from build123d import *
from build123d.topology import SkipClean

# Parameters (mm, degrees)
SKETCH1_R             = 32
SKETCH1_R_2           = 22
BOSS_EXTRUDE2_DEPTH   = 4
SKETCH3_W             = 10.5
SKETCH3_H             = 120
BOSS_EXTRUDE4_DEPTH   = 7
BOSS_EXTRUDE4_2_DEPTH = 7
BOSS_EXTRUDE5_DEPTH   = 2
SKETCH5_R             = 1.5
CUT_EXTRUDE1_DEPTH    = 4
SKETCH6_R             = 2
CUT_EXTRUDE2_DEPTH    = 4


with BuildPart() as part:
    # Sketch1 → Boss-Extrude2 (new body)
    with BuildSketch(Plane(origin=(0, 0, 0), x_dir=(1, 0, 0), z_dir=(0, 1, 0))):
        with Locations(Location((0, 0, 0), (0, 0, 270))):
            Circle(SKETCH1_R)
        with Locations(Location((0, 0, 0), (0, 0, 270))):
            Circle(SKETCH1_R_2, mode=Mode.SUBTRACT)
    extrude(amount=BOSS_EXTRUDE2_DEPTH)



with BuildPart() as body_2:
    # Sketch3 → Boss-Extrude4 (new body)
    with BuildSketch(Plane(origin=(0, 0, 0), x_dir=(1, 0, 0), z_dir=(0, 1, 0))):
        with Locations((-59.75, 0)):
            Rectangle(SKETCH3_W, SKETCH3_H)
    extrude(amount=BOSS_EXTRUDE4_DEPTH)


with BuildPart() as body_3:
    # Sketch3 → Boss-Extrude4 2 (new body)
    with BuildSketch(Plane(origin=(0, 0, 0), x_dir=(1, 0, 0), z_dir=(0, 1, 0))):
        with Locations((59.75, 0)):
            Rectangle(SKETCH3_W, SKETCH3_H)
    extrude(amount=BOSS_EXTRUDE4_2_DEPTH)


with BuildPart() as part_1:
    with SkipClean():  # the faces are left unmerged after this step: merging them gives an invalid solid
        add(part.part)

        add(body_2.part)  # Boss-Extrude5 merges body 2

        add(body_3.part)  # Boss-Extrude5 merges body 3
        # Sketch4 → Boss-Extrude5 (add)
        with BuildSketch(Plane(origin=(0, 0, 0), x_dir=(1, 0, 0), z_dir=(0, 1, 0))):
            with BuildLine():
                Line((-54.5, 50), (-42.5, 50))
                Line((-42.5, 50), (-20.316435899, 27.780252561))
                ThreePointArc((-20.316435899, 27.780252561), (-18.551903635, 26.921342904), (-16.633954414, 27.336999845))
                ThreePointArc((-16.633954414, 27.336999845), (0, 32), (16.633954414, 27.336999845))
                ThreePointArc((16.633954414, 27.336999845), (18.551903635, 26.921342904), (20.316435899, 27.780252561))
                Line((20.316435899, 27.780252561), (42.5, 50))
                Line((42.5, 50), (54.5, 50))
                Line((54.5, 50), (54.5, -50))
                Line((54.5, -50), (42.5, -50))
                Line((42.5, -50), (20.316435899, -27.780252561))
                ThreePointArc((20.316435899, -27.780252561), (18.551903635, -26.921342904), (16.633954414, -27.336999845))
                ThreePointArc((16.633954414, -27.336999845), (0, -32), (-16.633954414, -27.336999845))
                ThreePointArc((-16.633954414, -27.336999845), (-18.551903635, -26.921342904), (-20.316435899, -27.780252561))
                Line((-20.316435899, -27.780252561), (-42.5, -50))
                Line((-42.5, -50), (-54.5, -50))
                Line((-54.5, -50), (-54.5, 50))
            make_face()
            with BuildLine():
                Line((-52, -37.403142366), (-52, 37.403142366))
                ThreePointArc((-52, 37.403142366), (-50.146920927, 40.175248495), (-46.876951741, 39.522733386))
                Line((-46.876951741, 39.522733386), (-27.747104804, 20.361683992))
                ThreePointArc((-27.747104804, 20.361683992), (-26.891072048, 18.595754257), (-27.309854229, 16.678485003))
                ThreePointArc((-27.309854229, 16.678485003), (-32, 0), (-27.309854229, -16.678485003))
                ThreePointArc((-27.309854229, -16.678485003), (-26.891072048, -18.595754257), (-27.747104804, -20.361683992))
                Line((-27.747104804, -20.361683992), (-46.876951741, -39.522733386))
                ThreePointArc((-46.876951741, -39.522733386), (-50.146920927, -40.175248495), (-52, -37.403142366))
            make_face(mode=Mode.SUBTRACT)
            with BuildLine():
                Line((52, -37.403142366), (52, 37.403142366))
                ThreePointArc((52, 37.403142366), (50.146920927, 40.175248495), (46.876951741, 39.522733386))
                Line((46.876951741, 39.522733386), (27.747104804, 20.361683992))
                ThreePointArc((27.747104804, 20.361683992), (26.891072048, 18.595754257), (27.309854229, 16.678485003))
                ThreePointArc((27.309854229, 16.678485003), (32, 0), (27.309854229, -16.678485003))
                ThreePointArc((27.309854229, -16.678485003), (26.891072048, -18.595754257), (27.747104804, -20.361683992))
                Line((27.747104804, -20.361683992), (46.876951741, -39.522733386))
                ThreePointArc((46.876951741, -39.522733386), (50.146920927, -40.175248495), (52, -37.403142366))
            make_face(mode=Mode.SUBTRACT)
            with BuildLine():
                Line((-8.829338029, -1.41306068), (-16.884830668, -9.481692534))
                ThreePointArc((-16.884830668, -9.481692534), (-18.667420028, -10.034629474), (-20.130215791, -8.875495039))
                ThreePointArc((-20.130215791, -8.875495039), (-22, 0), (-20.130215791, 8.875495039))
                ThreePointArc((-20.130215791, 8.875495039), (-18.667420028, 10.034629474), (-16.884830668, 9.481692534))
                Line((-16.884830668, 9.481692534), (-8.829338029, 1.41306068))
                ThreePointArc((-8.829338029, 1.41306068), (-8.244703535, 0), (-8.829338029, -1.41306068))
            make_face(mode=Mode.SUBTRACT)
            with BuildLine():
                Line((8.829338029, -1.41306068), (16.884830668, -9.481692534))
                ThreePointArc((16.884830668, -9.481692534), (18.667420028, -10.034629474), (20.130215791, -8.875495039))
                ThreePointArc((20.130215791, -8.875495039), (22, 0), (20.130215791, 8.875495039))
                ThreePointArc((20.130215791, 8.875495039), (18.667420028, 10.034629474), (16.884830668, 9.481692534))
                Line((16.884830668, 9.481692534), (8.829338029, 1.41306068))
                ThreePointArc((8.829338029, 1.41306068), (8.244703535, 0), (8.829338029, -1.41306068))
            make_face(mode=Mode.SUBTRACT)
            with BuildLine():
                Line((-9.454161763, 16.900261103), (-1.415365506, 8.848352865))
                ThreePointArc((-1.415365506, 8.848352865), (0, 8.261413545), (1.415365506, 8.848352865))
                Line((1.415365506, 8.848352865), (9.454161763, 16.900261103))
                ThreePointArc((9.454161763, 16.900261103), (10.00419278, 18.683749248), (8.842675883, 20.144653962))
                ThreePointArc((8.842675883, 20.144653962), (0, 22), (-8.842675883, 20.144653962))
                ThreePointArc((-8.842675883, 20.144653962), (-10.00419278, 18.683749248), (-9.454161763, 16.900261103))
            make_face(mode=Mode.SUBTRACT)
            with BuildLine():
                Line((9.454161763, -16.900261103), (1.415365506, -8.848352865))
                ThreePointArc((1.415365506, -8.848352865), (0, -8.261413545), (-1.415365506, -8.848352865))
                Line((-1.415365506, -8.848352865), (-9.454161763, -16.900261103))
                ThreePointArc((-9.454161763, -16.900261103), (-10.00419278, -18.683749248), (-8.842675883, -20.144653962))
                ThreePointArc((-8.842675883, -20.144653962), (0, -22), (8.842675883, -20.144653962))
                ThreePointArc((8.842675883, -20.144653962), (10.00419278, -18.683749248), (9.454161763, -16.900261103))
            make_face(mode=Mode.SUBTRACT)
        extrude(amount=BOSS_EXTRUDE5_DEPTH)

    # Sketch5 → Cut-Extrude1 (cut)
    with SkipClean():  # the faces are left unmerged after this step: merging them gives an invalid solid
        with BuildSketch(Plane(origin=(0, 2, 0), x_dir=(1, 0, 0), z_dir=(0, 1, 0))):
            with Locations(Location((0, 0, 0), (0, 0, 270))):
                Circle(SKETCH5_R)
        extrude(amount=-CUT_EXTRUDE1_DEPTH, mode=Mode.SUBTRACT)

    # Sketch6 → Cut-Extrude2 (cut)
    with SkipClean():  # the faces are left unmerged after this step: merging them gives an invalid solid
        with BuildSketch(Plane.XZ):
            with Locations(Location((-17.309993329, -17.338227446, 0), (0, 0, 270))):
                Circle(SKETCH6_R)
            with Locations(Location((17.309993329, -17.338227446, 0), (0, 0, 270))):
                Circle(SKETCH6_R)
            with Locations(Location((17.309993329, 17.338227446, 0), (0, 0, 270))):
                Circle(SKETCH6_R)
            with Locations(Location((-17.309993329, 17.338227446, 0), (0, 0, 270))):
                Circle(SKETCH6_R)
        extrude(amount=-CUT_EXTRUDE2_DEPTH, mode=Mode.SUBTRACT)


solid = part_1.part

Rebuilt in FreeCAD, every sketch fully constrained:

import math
import FreeCAD as App
import Part
import Sketcher
from FreeCAD import Vector


def add_polygon(sketch, points):
    """Adds a closed chain of lines whose ends are joined by coincident constraints."""
    first, n = sketch.GeometryCount, len(points)
    for a, b in zip(points, points[1:] + points[:1]):
        sketch.addGeometry(Part.LineSegment(App.Vector(*a, 0), App.Vector(*b, 0)), False)
    for i in range(n):
        sketch.addConstraint(Sketcher.Constraint("Coincident", first + i, 2, first + (i + 1) % n, 1))

doc = App.newDocument("Part")
params = doc.addObject("Spreadsheet::Sheet", "Params")
for row, (alias, value) in enumerate([
    ("sketch1_diameter", "64 mm"),
    ("sketch1_diameter2", "44 mm"),
    ("pad1_length", "4 mm"),
    ("sketch2_height", "120 mm"),
    ("sketch2_width", "10.5 mm"),
    ("pad2_length", "7 mm"),
    ("sketch3_height", "120 mm"),
    ("sketch3_width", "10.5 mm"),
    ("pad3_length", "7 mm"),
    ("sketch4_radius", "3 mm"),
    ("sketch4_radius2", "32 mm"),
    ("sketch4_radius3", "2 mm"),
    ("sketch4_radius4", "22 mm"),
    ("sketch4_width", "12 mm"),
    ("pad4_length", "2 mm"),
    ("sketch5_diameter", "3 mm"),
    ("pocket1_length", "4 mm"),
    ("sketch6_diameter", "4 mm"),
    ("pocket2_length", "4 mm"),
], start=1):
    params.set(f"A{row}", alias)
    params.set(f"B{row}", "=" + value)
    params.setAlias(f"B{row}", alias)

body = doc.addObject("PartDesign::Body", "Body")

sketch1 = body.newObject("Sketcher::SketchObject", "Sketch")
sketch1.AttachmentSupport = (doc.getObject("XZ_Plane"), [""])
sketch1.MapMode = "FlatFace"
sketch1.addGeometry([
    Part.Circle(Vector(0, 0, 0), Vector(0, 0, 1), 32),
    Part.Circle(Vector(0, 0, 0), Vector(0, 0, 1), 22),
], False)
sketch1.addConstraint([
    Sketcher.Constraint("Coincident", 0, 3, -1, 1),
    Sketcher.Constraint("Coincident", 1, 3, -1, 1),
    Sketcher.Constraint("Diameter", 0, 64.0),
    Sketcher.Constraint("Diameter", 1, 44.0),
])
sketch1.setExpression("Constraints[2]", "Params.sketch1_diameter")
sketch1.setExpression("Constraints[3]", "Params.sketch1_diameter2")
pad1 = body.newObject("PartDesign::Pad", "Pad")
pad1.Profile = sketch1
pad1.setExpression("Length", "Params.pad1_length")
pad1.Reversed = True
body2 = doc.addObject("PartDesign::Body", "Body001")

sketch2 = body2.newObject("Sketcher::SketchObject", "Sketch001")
sketch2.AttachmentSupport = (doc.getObject("XZ_Plane001"), [""])
sketch2.MapMode = "FlatFace"
add_polygon(sketch2, [(-65, -60), (-65, 60), (-54.5, 60), (-54.5, -60)])
sketch2.addConstraint([
    Sketcher.Constraint("Vertical", 0),
    Sketcher.Constraint("Horizontal", 1),
    Sketcher.Constraint("Vertical", 2),
    Sketcher.Constraint("Horizontal", 3),
    Sketcher.Constraint("DistanceY", 0, 1, 0, 2, 120.0),
    Sketcher.Constraint("DistanceX", 1, 1, 1, 2, 10.5),
    Sketcher.Constraint("DistanceX", 0, 2, -1, 1, 65.0),
    Sketcher.Constraint("DistanceY", -1, 1, 0, 2, 60.0),
])
sketch2.setExpression("Constraints[8]", "Params.sketch2_height")
sketch2.setExpression("Constraints[9]", "Params.sketch2_width")
pad2 = body2.newObject("PartDesign::Pad", "Pad001")
pad2.Profile = sketch2
pad2.setExpression("Length", "Params.pad2_length")
pad2.Reversed = True
body3 = doc.addObject("PartDesign::Body", "Body002")

sketch3 = body3.newObject("Sketcher::SketchObject", "Sketch002")
sketch3.AttachmentSupport = (doc.getObject("XZ_Plane002"), [""])
sketch3.MapMode = "FlatFace"
add_polygon(sketch3, [(54.5, -60), (54.5, 60), (65, 60), (65, -60)])
sketch3.addConstraint([
    Sketcher.Constraint("Vertical", 0),
    Sketcher.Constraint("Horizontal", 1),
    Sketcher.Constraint("Vertical", 2),
    Sketcher.Constraint("Horizontal", 3),
    Sketcher.Constraint("DistanceY", 0, 1, 0, 2, 120.0),
    Sketcher.Constraint("DistanceX", 1, 1, 1, 2, 10.5),
    Sketcher.Constraint("DistanceY", -1, 1, 0, 2, 60.0),
    Sketcher.Constraint("DistanceX", -1, 1, 1, 2, 65.0),
])
sketch3.setExpression("Constraints[8]", "Params.sketch3_height")
sketch3.setExpression("Constraints[9]", "Params.sketch3_width")
pad3 = body3.newObject("PartDesign::Pad", "Pad002")
pad3.Profile = sketch3
pad3.setExpression("Length", "Params.pad3_length")
pad3.Reversed = True
body.AllowCompound = True
doc.recompute()

boolean = body.newObject("PartDesign::Boolean", "Boolean")
boolean.Type = "Fuse"
boolean.addObjects([body2])
doc.recompute()

boolean2 = body.newObject("PartDesign::Boolean", "Boolean001")
boolean2.Type = "Fuse"
boolean2.addObjects([body3])

sketch4 = body.newObject("Sketcher::SketchObject", "Sketch003")
sketch4.AttachmentSupport = (doc.getObject("XZ_Plane"), [""])
sketch4.MapMode = "FlatFace"
sketch4.addGeometry([
    Part.LineSegment(Vector(-42.5, -50, 0), Vector(-54.5, -50, 0)),
    Part.LineSegment(Vector(-54.5, -50, 0), Vector(-54.5, 50, 0)),
    Part.LineSegment(Vector(-54.5, 50, 0), Vector(-42.5, 50, 0)),
    Part.LineSegment(Vector(-42.5, 50, 0), Vector(-20.316436, 27.780253, 0)),
    Part.ArcOfCircle(Part.Circle(Vector(-18.193388, 29.899844, 0), Vector(0, 0, 1), 3), math.radians(-135.046689), math.radians(-58.68042)),
    Part.ArcOfCircle(Part.Circle(Vector(0, 0, 0), Vector(0, 0, 1), 32), math.radians(58.68042), math.radians(121.31958)),
    Part.ArcOfCircle(Part.Circle(Vector(18.193388, 29.899844, 0), Vector(0, 0, 1), 3), math.radians(-121.31958), math.radians(-44.953311)),
    Part.LineSegment(Vector(20.316436, 27.780253, 0), Vector(42.5, 50, 0)),
    Part.LineSegment(Vector(42.5, 50, 0), Vector(54.5, 50, 0)),
    Part.LineSegment(Vector(54.5, 50, 0), Vector(54.5, -50, 0)),
    Part.LineSegment(Vector(54.5, -50, 0), Vector(42.5, -50, 0)),
    Part.LineSegment(Vector(42.5, -50, 0), Vector(20.316436, -27.780253, 0)),
    Part.ArcOfCircle(Part.Circle(Vector(18.193388, -29.899844, 0), Vector(0, 0, 1), 3), math.radians(44.953311), math.radians(121.31958)),
    Part.ArcOfCircle(Part.Circle(Vector(0, 0, 0), Vector(0, 0, 1), 32), math.radians(-121.31958), math.radians(-58.68042)),
    Part.ArcOfCircle(Part.Circle(Vector(-18.193388, -29.899844, 0), Vector(0, 0, 1), 3), math.radians(58.68042), math.radians(135.046689)),
    Part.LineSegment(Vector(-20.316436, -27.780253, 0), Vector(-42.5, -50, 0)),
    Part.ArcOfCircle(Part.Circle(Vector(8.038796, 18.313322, 0), Vector(0, 0, 1), 2), math.radians(-44.953311), math.radians(66.300498)),
    Part.ArcOfCircle(Part.Circle(Vector(0, 0, 0), Vector(0, 0, 1), 22), math.radians(66.300498), math.radians(113.699502)),
    Part.ArcOfCircle(Part.Circle(Vector(-8.038796, 18.313322, 0), Vector(0, 0, 1), 2), math.radians(113.699502), math.radians(224.953311)),
    Part.LineSegment(Vector(-9.454162, 16.900261, 0), Vector(-1.415366, 8.848353, 0)),
    Part.ArcOfCircle(Part.Circle(Vector(0, 10.261414, 0), Vector(0, 0, 1), 2), math.radians(-135.046689), math.radians(-44.953311)),
    Part.LineSegment(Vector(1.415366, 8.848353, 0), Vector(9.454162, 16.900261, 0)),
    Part.ArcOfCircle(Part.Circle(Vector(49, 37.403142, 0), Vector(0, 0, 1), 3), math.radians(0), math.radians(135.046689)),
    Part.LineSegment(Vector(46.876952, 39.522733, 0), Vector(27.747105, 20.361684, 0)),
    Part.ArcOfCircle(Part.Circle(Vector(29.870153, 18.242093, 0), Vector(0, 0, 1), 3), math.radians(135.046689), math.radians(211.412958)),
    Part.ArcOfCircle(Part.Circle(Vector(0, 0, 0), Vector(0, 0, 1), 32), math.radians(-31.412958), math.radians(31.412958)),
    Part.ArcOfCircle(Part.Circle(Vector(29.870153, -18.242093, 0), Vector(0, 0, 1), 3), math.radians(148.587042), math.radians(224.953311)),
    Part.LineSegment(Vector(27.747105, -20.361684, 0), Vector(46.876952, -39.522733, 0)),
    Part.ArcOfCircle(Part.Circle(Vector(49, -37.403142, 0), Vector(0, 0, 1), 3), math.radians(-135.046689), math.radians(0)),
    Part.LineSegment(Vector(52, -37.403142, 0), Vector(52, 37.403142, 0)),
    Part.ArcOfCircle(Part.Circle(Vector(10.244704, 0, 0), Vector(0, 0, 1), 2), math.radians(135.046689), math.radians(224.953311)),
    Part.LineSegment(Vector(8.829338, -1.413061, 0), Vector(16.884831, -9.481693, 0)),
    Part.ArcOfCircle(Part.Circle(Vector(18.300196, -8.068632, 0), Vector(0, 0, 1), 2), math.radians(-135.046689), math.radians(-23.79288)),
    Part.ArcOfCircle(Part.Circle(Vector(0, 0, 0), Vector(0, 0, 1), 22), math.radians(-23.79288), math.radians(23.79288)),
    Part.ArcOfCircle(Part.Circle(Vector(18.300196, 8.068632, 0), Vector(0, 0, 1), 2), math.radians(23.79288), math.radians(135.046689)),
    Part.LineSegment(Vector(16.884831, 9.481693, 0), Vector(8.829338, 1.413061, 0)),
    Part.LineSegment(Vector(-8.829338, 1.413061, 0), Vector(-16.884831, 9.481693, 0)),
    Part.ArcOfCircle(Part.Circle(Vector(-18.300196, 8.068632, 0), Vector(0, 0, 1), 2), math.radians(44.953311), math.radians(156.20712)),
    Part.ArcOfCircle(Part.Circle(Vector(0, 0, 0), Vector(0, 0, 1), 22), math.radians(156.20712), math.radians(203.79288)),
    Part.ArcOfCircle(Part.Circle(Vector(-18.300196, -8.068632, 0), Vector(0, 0, 1), 2), math.radians(-156.20712), math.radians(-44.953311)),
    Part.LineSegment(Vector(-16.884831, -9.481693, 0), Vector(-8.829338, -1.413061, 0)),
    Part.ArcOfCircle(Part.Circle(Vector(-10.244704, 0, 0), Vector(0, 0, 1), 2), math.radians(-44.953311), math.radians(44.953311)),
    Part.ArcOfCircle(Part.Circle(Vector(-8.038796, -18.313322, 0), Vector(0, 0, 1), 2), math.radians(135.046689), math.radians(246.300498)),
    Part.ArcOfCircle(Part.Circle(Vector(0, 0, 0), Vector(0, 0, 1), 22), math.radians(-113.699502), math.radians(-66.300498)),
    Part.ArcOfCircle(Part.Circle(Vector(8.038796, -18.313322, 0), Vector(0, 0, 1), 2), math.radians(-66.300498), math.radians(44.953311)),
    Part.LineSegment(Vector(9.454162, -16.900261, 0), Vector(1.415366, -8.848353, 0)),
    Part.ArcOfCircle(Part.Circle(Vector(0, -10.261414, 0), Vector(0, 0, 1), 2), math.radians(44.953311), math.radians(135.046689)),
    Part.LineSegment(Vector(-1.415366, -8.848353, 0), Vector(-9.454162, -16.900261, 0)),
    Part.LineSegment(Vector(-52, 37.403142, 0), Vector(-52, -37.403142, 0)),
    Part.ArcOfCircle(Part.Circle(Vector(-49, -37.403142, 0), Vector(0, 0, 1), 3), math.radians(180), math.radians(315.046689)),
    Part.LineSegment(Vector(-46.876952, -39.522733, 0), Vector(-27.747105, -20.361684, 0)),
    Part.ArcOfCircle(Part.Circle(Vector(-29.870153, -18.242093, 0), Vector(0, 0, 1), 3), math.radians(-44.953311), math.radians(31.412958)),
    Part.ArcOfCircle(Part.Circle(Vector(0, 0, 0), Vector(0, 0, 1), 32), math.radians(148.587042), math.radians(211.412958)),
    Part.ArcOfCircle(Part.Circle(Vector(-29.870153, 18.242093, 0), Vector(0, 0, 1), 3), math.radians(-31.412958), math.radians(44.953311)),
    Part.LineSegment(Vector(-27.747105, 20.361684, 0), Vector(-46.876952, 39.522733, 0)),
    Part.ArcOfCircle(Part.Circle(Vector(-49, 37.403142, 0), Vector(0, 0, 1), 3), math.radians(44.953311), math.radians(180)),
], False)
sketch4.addConstraint([
    Sketcher.Constraint("Coincident", 0, 2, 1, 1),
    Sketcher.Constraint("Coincident", 1, 2, 2, 1),
    Sketcher.Constraint("Coincident", 2, 2, 3, 1),
    Sketcher.Constraint("Tangent", 3, 2, 4, 1),
    Sketcher.Constraint("Tangent", 4, 2, 5, 2),
    Sketcher.Constraint("Tangent", 5, 1, 6, 1),
    Sketcher.Constraint("Tangent", 6, 2, 7, 1),
    Sketcher.Constraint("Coincident", 7, 2, 8, 1),
    Sketcher.Constraint("Coincident", 8, 2, 9, 1),
    Sketcher.Constraint("Coincident", 9, 2, 10, 1),
    Sketcher.Constraint("Coincident", 10, 2, 11, 1),
    Sketcher.Constraint("Tangent", 11, 2, 12, 1),
    Sketcher.Constraint("Tangent", 12, 2, 13, 2),
    Sketcher.Constraint("Tangent", 13, 1, 14, 1),
    Sketcher.Constraint("Tangent", 14, 2, 15, 1),
    Sketcher.Constraint("Coincident", 15, 2, 0, 1),
    Sketcher.Constraint("Tangent", 16, 2, 17, 1),
    Sketcher.Constraint("Tangent", 17, 2, 18, 1),
    Sketcher.Constraint("Tangent", 18, 2, 19, 1),
    Sketcher.Constraint("Tangent", 19, 2, 20, 1),
    Sketcher.Constraint("Tangent", 20, 2, 21, 1),
    Sketcher.Constraint("Tangent", 21, 2, 16, 1),
    Sketcher.Constraint("Tangent", 22, 2, 23, 1),
    Sketcher.Constraint("Tangent", 23, 2, 24, 1),
    Sketcher.Constraint("Tangent", 24, 2, 25, 2),
    Sketcher.Constraint("Tangent", 25, 1, 26, 1),
    Sketcher.Constraint("Tangent", 26, 2, 27, 1),
    Sketcher.Constraint("Tangent", 27, 2, 28, 1),
    Sketcher.Constraint("Tangent", 28, 2, 29, 1),
    Sketcher.Constraint("Tangent", 29, 2, 22, 1),
    Sketcher.Constraint("Tangent", 30, 2, 31, 1),
    Sketcher.Constraint("Tangent", 31, 2, 32, 1),
    Sketcher.Constraint("Tangent", 32, 2, 33, 1),
    Sketcher.Constraint("Tangent", 33, 2, 34, 1),
    Sketcher.Constraint("Tangent", 34, 2, 35, 1),
    Sketcher.Constraint("Tangent", 35, 2, 30, 1),
    Sketcher.Constraint("Tangent", 36, 2, 37, 1),
    Sketcher.Constraint("Tangent", 37, 2, 38, 1),
    Sketcher.Constraint("Tangent", 38, 2, 39, 1),
    Sketcher.Constraint("Tangent", 39, 2, 40, 1),
    Sketcher.Constraint("Tangent", 40, 2, 41, 1),
    Sketcher.Constraint("Tangent", 41, 2, 36, 1),
    Sketcher.Constraint("Tangent", 42, 2, 43, 1),
    Sketcher.Constraint("Tangent", 43, 2, 44, 1),
    Sketcher.Constraint("Tangent", 44, 2, 45, 1),
    Sketcher.Constraint("Tangent", 45, 2, 46, 1),
    Sketcher.Constraint("Tangent", 46, 2, 47, 1),
    Sketcher.Constraint("Tangent", 47, 2, 42, 1),
    Sketcher.Constraint("Tangent", 48, 2, 49, 1),
    Sketcher.Constraint("Tangent", 49, 2, 50, 1),
    Sketcher.Constraint("Tangent", 50, 2, 51, 1),
    Sketcher.Constraint("Tangent", 51, 2, 52, 2),
    Sketcher.Constraint("Tangent", 52, 1, 53, 1),
    Sketcher.Constraint("Tangent", 53, 2, 54, 1),
    Sketcher.Constraint("Tangent", 54, 2, 55, 1),
    Sketcher.Constraint("Tangent", 55, 2, 48, 1),
    Sketcher.Constraint("Horizontal", 0),
    Sketcher.Constraint("Vertical", 1),
    Sketcher.Constraint("Horizontal", 2),
    Sketcher.Constraint("Horizontal", 8),
    Sketcher.Constraint("Vertical", 9),
    Sketcher.Constraint("Horizontal", 10),
    Sketcher.Constraint("Vertical", 29),
    Sketcher.Constraint("Vertical", 48),
    Sketcher.Constraint("Coincident", 5, 3, -1, 1),
    Sketcher.Constraint("Coincident", 13, 3, -1, 1),
    Sketcher.Constraint("Coincident", 17, 3, -1, 1),
    Sketcher.Constraint("Coincident", 25, 3, -1, 1),
    Sketcher.Constraint("Coincident", 33, 3, -1, 1),
    Sketcher.Constraint("Coincident", 38, 3, -1, 1),
    Sketcher.Constraint("Coincident", 43, 3, -1, 1),
    Sketcher.Constraint("Coincident", 52, 3, -1, 1),
    Sketcher.Constraint("Equal", 4, 6),
    Sketcher.Constraint("Equal", 6, 12),
    Sketcher.Constraint("Equal", 5, 13),
    Sketcher.Constraint("Equal", 12, 14),
    Sketcher.Constraint("Equal", 16, 18),
    Sketcher.Constraint("Equal", 18, 20),
    Sketcher.Constraint("Equal", 14, 22),
    Sketcher.Constraint("Equal", 22, 24),
    Sketcher.Constraint("Equal", 13, 25),
    Sketcher.Constraint("Equal", 24, 26),
    Sketcher.Constraint("Equal", 26, 28),
    Sketcher.Constraint("Equal", 20, 30),
    Sketcher.Constraint("Equal", 30, 32),
    Sketcher.Constraint("Equal", 17, 33),
    Sketcher.Constraint("Equal", 32, 34),
    Sketcher.Constraint("Equal", 34, 37),
    Sketcher.Constraint("Equal", 33, 38),
    Sketcher.Constraint("Equal", 37, 39),
    Sketcher.Constraint("Equal", 39, 41),
    Sketcher.Constraint("Equal", 41, 42),
    Sketcher.Constraint("Equal", 38, 43),
    Sketcher.Constraint("Equal", 42, 44),
    Sketcher.Constraint("Equal", 44, 46),
    Sketcher.Constraint("Equal", 28, 49),
    Sketcher.Constraint("Equal", 49, 51),
    Sketcher.Constraint("Equal", 25, 52),
    Sketcher.Constraint("Equal", 51, 53),
    Sketcher.Constraint("Equal", 53, 55),
    Sketcher.Constraint("Symmetric", 30, 3, 41, 3, -1, 1),
    Sketcher.Constraint("Symmetric", 20, 3, 46, 3, -1, 1),
    Sketcher.Constraint("Symmetric", 22, 3, 49, 3, -1, 1),
    Sketcher.Constraint("Symmetric", 0, 2, 8, 2, -1, 1),
    Sketcher.Constraint("Symmetric", 2, 2, 10, 2, -1, 1),
    Sketcher.Constraint("Symmetric", 6, 2, 14, 2, -1, 1),
    Sketcher.Constraint("Symmetric", 26, 2, 53, 2, -1, 1),
    Sketcher.Constraint("Symmetric", 3, 2, 6, 2, -2),
    Sketcher.Constraint("Symmetric", 19, 2, 20, 2, -2),
    Sketcher.Constraint("Symmetric", 34, 2, 36, 2, -2),
    Sketcher.Constraint("Symmetric", 27, 2, 49, 2, -2),
    Sketcher.Constraint("Parallel", 3, 11),
    Sketcher.Constraint("Parallel", 11, 19),
    Sketcher.Constraint("Parallel", 21, 23),
    Sketcher.Constraint("Parallel", 19, 27),
    Sketcher.Constraint("Parallel", 27, 31),
    Sketcher.Constraint("Parallel", 23, 35),
    Sketcher.Constraint("Parallel", 35, 40),
    Sketcher.Constraint("Parallel", 36, 45),
    Sketcher.Constraint("Parallel", 40, 47),
    Sketcher.Constraint("Horizontal", 2, 2, 7, 2),
    Sketcher.Constraint("Radius", 4, 3.0),
    Sketcher.Constraint("Radius", 5, 32.0),
    Sketcher.Constraint("Radius", 16, 2.0),
    Sketcher.Constraint("Radius", 17, 22.0),
    Sketcher.Constraint("DistanceX", 0, 2, 0, 1, 12.0),
    Sketcher.Constraint("DistanceY", 1, 1, 1, 2, 100.0),
    Sketcher.Constraint("DistanceX", -1, 1, 22, 3, 49.0),
    Sketcher.Constraint("DistanceX", 0, 2, -1, 1, 54.5),
    Sketcher.Constraint("DistanceY", -1, 1, 4, 2, 27.337),
    Sketcher.Constraint("Distance", 19, 11.37785),
    Sketcher.Constraint("Distance", 23, 27.075761),
    Sketcher.Constraint("Distance", 31, 11.401482),
])
sketch4.setExpression("Constraints[121]", "Params.sketch4_radius")
sketch4.setExpression("Constraints[122]", "Params.sketch4_radius2")
sketch4.setExpression("Constraints[123]", "Params.sketch4_radius3")
sketch4.setExpression("Constraints[124]", "Params.sketch4_radius4")
sketch4.setExpression("Constraints[125]", "Params.sketch4_width")
pad4 = body.newObject("PartDesign::Pad", "Pad003")
pad4.Profile = sketch4
pad4.setExpression("Length", "Params.pad4_length")
pad4.Reversed = True

sketch5 = body.newObject("Sketcher::SketchObject", "Sketch004")
sketch5.AttachmentSupport = (doc.getObject("XZ_Plane"), [""])
sketch5.MapMode = "FlatFace"
sketch5.AttachmentOffset = App.Placement(Vector(0, 0, -2), App.Rotation())
sketch5.addGeometry(Part.Circle(Vector(0, 0, 0), Vector(0, 0, 1), 1.5), False)
sketch5.addConstraint([
    Sketcher.Constraint("Coincident", 0, 3, -1, 1),
    Sketcher.Constraint("Diameter", 0, 3.0),
])
sketch5.setExpression("Constraints[1]", "Params.sketch5_diameter")
pocket1 = body.newObject("PartDesign::Pocket", "Pocket")
pocket1.Profile = sketch5
pocket1.setExpression("Length", "Params.pocket1_length")
pocket1.Reversed = True

sketch6 = body.newObject("Sketcher::SketchObject", "Sketch005")
sketch6.AttachmentSupport = (doc.getObject("XZ_Plane"), [""])
sketch6.MapMode = "FlatFace"
sketch6.addGeometry([
    Part.Circle(Vector(-17.309993, -17.338227, 0), Vector(0, 0, 1), 2),
    Part.Circle(Vector(17.309993, -17.338227, 0), Vector(0, 0, 1), 2),
    Part.Circle(Vector(17.309993, 17.338227, 0), Vector(0, 0, 1), 2),
    Part.Circle(Vector(-17.309993, 17.338227, 0), Vector(0, 0, 1), 2),
], False)
sketch6.addConstraint([
    Sketcher.Constraint("Equal", 0, 1),
    Sketcher.Constraint("Equal", 1, 2),
    Sketcher.Constraint("Equal", 2, 3),
    Sketcher.Constraint("Symmetric", 0, 3, 2, 3, -1, 1),
    Sketcher.Constraint("Symmetric", 1, 3, 3, 3, -1, 1),
    Sketcher.Constraint("Symmetric", 0, 3, 1, 3, -2),
    Sketcher.Constraint("Diameter", 0, 4.0),
    Sketcher.Constraint("DistanceX", 0, 3, -1, 1, 17.309993),
    Sketcher.Constraint("DistanceY", 0, 3, -1, 1, 17.338227),
])
sketch6.setExpression("Constraints[6]", "Params.sketch6_diameter")
pocket2 = body.newObject("PartDesign::Pocket", "Pocket001")
pocket2.Profile = sketch6
pocket2.setExpression("Length", "Params.pocket2_length")

doc.recompute()
